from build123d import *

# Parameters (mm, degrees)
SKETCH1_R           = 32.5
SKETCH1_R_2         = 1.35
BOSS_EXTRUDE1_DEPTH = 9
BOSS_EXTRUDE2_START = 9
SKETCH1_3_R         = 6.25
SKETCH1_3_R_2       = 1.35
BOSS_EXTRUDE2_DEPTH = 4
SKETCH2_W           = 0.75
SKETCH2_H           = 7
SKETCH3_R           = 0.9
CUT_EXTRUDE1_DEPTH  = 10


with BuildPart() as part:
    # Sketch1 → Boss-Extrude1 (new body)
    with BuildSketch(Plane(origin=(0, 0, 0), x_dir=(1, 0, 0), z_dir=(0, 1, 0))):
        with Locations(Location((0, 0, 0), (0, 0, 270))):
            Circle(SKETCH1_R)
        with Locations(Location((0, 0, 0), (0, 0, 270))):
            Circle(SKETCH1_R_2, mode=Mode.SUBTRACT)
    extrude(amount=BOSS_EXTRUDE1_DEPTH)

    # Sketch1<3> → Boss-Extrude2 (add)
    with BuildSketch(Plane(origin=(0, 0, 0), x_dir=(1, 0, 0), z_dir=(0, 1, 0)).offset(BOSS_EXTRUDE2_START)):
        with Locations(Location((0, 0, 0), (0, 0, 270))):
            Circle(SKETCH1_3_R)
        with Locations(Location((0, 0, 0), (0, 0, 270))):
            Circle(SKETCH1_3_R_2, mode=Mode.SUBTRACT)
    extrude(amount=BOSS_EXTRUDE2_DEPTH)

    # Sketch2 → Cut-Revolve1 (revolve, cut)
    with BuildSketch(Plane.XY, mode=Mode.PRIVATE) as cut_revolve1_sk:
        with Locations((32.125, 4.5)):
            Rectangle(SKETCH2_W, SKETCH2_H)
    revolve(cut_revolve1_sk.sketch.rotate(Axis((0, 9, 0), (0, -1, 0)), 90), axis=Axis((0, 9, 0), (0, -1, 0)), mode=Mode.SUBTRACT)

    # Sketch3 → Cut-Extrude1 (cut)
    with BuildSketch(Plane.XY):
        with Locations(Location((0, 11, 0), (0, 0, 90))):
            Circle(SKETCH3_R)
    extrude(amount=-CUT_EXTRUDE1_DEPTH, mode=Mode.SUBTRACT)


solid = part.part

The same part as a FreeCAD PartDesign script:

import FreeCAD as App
import Part
import Sketcher

V = App.Vector

doc = App.newDocument("Part")
body = doc.addObject("PartDesign::Body", "Body")

sketch1 = doc.addObject("Sketcher::SketchObject", "Sketch")
body.addObject(sketch1)
sketch1.AttachmentSupport = (doc.XZ_Plane, [""])
sketch1.MapMode = "FlatFace"
sketch1.addGeometry(Part.Circle(V(0, 0, 0), V(0, 0, 1), 32.5), False)
sketch1.addGeometry(Part.Circle(V(0, 0, 0), V(0, 0, 1), 1.4), False)
sketch1.addConstraint(Sketcher.Constraint("Coincident", 0, 3, -1, 1))
sketch1.addConstraint(Sketcher.Constraint("Coincident", 1, 3, -1, 1))
sketch1.addConstraint(Sketcher.Constraint("Diameter", 0, 65.0))
sketch1.addConstraint(Sketcher.Constraint("Diameter", 1, 2.7))
pad1 = doc.addObject("PartDesign::Pad", "Pad")
body.addObject(pad1)
pad1.Profile = sketch1
pad1.Length = 9
pad1.Reversed = True

sketch2 = doc.addObject("Sketcher::SketchObject", "Sketch001")
body.addObject(sketch2)
sketch2.AttachmentSupport = (doc.XZ_Plane, [""])
sketch2.MapMode = "FlatFace"
sketch2.AttachmentOffset = App.Placement(V(0, 0, -9), App.Rotation())
sketch2.addGeometry(Part.Circle(V(0, 0, 0), V(0, 0, 1), 6.2), False)
sketch2.addGeometry(Part.Circle(V(0, 0, 0), V(0, 0, 1), 1.4), False)
sketch2.addConstraint(Sketcher.Constraint("Coincident", 0, 3, -1, 1))
sketch2.addConstraint(Sketcher.Constraint("Coincident", 1, 3, -1, 1))
sketch2.addConstraint(Sketcher.Constraint("Diameter", 0, 12.5))
sketch2.addConstraint(Sketcher.Constraint("Diameter", 1, 2.7))
pad2 = doc.addObject("PartDesign::Pad", "Pad001")
body.addObject(pad2)
pad2.Profile = sketch2
pad2.Length = 4
pad2.Reversed = True

sketch3 = doc.addObject("Sketcher::SketchObject", "Sketch002")
body.addObject(sketch3)
sketch3.AttachmentSupport = (doc.XY_Plane, [""])
sketch3.MapMode = "FlatFace"
sketch3.addGeometry(Part.LineSegment(V(31.8, 8, 0), V(31.8, 1, 0)), False)
sketch3.addGeometry(Part.LineSegment(V(31.8, 1, 0), V(32.5, 1, 0)), False)
sketch3.addGeometry(Part.LineSegment(V(32.5, 1, 0), V(32.5, 8, 0)), False)
sketch3.addGeometry(Part.LineSegment(V(32.5, 8, 0), V(31.8, 8, 0)), False)
sketch3.addConstraint(Sketcher.Constraint("Coincident", 0, 2, 1, 1))
sketch3.addConstraint(Sketcher.Constraint("Coincident", 1, 2, 2, 1))
sketch3.addConstraint(Sketcher.Constraint("Coincident", 2, 2, 3, 1))
sketch3.addConstraint(Sketcher.Constraint("Coincident", 3, 2, 0, 1))
sketch3.addConstraint(Sketcher.Constraint("Vertical", 0))
sketch3.addConstraint(Sketcher.Constraint("Horizontal", 1))
sketch3.addConstraint(Sketcher.Constraint("Vertical", 2))
sketch3.addConstraint(Sketcher.Constraint("Horizontal", 3))
sketch3.addConstraint(Sketcher.Constraint("DistanceY", 0, 2, 0, 1, 7.0))
sketch3.addConstraint(Sketcher.Constraint("DistanceY", -1, 1, 0, 2, 1.0))
sketch3.addConstraint(Sketcher.Constraint("DistanceX", 1, 1, 1, 2, 0.75))
sketch3.addConstraint(Sketcher.Constraint("DistanceX", -1, 1, 1, 2, 32.5))
groove = doc.addObject("PartDesign::Groove", "Groove")
body.addObject(groove)
groove.Profile = sketch3
groove.ReferenceAxis = (sketch3, ["V_Axis"])
groove.Angle = 360

sketch4 = doc.addObject("Sketcher::SketchObject", "Sketch003")
body.addObject(sketch4)
sketch4.AttachmentSupport = (doc.XY_Plane, [""])
sketch4.MapMode = "FlatFace"
sketch4.addGeometry(Part.Circle(V(0, 11, 0), V(0, 0, 1), 0.9), False)
sketch4.addConstraint(Sketcher.Constraint("PointOnObject", 0, 3, -2))
sketch4.addConstraint(Sketcher.Constraint("Diameter", 0, 1.8))
sketch4.addConstraint(Sketcher.Constraint("DistanceY", -1, 1, 0, 3, 11.0))
pocket1 = doc.addObject("PartDesign::Pocket", "Pocket")
body.addObject(pocket1)
pocket1.Profile = sketch4
pocket1.Length = 10

doc.recompute()
